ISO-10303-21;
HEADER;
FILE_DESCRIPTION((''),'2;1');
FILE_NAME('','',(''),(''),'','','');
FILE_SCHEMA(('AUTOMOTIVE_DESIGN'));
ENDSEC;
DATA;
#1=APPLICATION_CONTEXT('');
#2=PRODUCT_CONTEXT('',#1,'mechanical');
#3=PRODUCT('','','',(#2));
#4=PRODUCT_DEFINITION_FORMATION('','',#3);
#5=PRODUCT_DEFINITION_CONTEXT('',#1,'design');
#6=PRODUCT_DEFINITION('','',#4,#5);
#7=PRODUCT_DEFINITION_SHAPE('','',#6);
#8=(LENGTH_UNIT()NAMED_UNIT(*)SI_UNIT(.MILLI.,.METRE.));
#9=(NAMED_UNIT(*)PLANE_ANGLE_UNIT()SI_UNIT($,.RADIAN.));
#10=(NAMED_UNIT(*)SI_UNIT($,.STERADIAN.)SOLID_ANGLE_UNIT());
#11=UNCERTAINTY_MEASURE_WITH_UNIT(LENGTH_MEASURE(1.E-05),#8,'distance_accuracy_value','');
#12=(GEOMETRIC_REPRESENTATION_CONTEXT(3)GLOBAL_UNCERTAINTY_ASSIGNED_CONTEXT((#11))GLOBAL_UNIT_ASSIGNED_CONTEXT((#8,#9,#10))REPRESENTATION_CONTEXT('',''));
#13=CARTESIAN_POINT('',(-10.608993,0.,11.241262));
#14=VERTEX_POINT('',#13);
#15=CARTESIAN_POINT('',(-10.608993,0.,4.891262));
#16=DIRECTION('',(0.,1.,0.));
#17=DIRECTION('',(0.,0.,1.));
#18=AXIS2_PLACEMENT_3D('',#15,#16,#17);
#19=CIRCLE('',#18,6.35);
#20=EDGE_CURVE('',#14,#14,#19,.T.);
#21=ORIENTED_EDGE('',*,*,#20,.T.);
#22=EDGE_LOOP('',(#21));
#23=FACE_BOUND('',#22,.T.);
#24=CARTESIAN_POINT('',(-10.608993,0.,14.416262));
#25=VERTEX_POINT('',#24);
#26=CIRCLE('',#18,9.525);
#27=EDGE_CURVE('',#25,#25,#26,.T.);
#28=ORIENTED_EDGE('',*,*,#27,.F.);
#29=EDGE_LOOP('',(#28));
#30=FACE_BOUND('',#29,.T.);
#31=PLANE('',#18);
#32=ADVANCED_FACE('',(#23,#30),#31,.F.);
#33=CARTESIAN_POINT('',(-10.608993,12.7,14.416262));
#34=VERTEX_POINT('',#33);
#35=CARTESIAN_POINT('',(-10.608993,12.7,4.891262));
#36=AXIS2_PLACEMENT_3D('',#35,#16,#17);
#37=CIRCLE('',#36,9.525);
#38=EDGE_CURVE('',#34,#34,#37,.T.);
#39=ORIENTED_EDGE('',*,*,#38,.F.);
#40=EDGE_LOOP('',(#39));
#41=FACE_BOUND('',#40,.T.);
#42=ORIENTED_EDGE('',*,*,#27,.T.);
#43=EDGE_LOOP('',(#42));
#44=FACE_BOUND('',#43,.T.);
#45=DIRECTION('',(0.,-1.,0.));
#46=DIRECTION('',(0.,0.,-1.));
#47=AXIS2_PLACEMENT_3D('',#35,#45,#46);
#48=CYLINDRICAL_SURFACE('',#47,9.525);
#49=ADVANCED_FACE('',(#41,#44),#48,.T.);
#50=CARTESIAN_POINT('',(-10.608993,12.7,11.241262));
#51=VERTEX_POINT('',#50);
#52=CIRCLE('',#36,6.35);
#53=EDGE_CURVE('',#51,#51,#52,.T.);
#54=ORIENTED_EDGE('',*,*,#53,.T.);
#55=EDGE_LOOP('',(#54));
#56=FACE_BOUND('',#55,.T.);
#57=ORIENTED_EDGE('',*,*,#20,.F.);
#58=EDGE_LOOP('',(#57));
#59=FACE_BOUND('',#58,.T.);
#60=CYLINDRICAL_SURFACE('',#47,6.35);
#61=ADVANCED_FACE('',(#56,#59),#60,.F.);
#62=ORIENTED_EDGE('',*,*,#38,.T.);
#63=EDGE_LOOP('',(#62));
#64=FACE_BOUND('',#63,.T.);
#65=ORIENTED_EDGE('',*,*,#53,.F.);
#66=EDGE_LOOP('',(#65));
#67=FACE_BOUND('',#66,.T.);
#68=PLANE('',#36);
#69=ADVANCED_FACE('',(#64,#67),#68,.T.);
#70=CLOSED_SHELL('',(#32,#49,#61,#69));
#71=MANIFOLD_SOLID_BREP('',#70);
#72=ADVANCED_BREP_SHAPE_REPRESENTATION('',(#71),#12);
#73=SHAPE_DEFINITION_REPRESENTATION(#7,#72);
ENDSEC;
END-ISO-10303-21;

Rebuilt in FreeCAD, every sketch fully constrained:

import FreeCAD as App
import Part
import Sketcher
from FreeCAD import Vector
Q = App.Units.Quantity

doc = App.newDocument("Part")
body = doc.addObject("PartDesign::Body", "Body")

# Sketch on XZ plane
sketch1 = body.newObject("Sketcher::SketchObject", "Sketch")
sketch1.AttachmentSupport = (doc.getObject("XZ_Plane"), [""])
sketch1.MapMode = "FlatFace"
sketch1.addGeometry([
    Part.Circle(Vector(-11, 5, 0), Vector(0, 0, 1), 10),
    Part.Circle(Vector(-11, 5, 0), Vector(0, 0, 1), 6),
], False)
sketch1.addConstraint([
    Sketcher.Constraint("Coincident", 1, 3, 0, 3),
    Sketcher.Constraint("Diameter", 1, Q("0.5 in")),
    Sketcher.Constraint("Diameter", 0, Q("0.75 in")),
    Sketcher.Constraint("DistanceX", 0, 3, -1, 1, Q("10.608993 mm")),
    Sketcher.Constraint("DistanceY", -1, 1, 0, 3, Q("4.891262 mm")),
])
pad1 = body.newObject("PartDesign::Pad", "Pad")
pad1.Profile = sketch1
pad1.Length = Q("0.5 in")
pad1.Reversed = True

doc.recompute()
